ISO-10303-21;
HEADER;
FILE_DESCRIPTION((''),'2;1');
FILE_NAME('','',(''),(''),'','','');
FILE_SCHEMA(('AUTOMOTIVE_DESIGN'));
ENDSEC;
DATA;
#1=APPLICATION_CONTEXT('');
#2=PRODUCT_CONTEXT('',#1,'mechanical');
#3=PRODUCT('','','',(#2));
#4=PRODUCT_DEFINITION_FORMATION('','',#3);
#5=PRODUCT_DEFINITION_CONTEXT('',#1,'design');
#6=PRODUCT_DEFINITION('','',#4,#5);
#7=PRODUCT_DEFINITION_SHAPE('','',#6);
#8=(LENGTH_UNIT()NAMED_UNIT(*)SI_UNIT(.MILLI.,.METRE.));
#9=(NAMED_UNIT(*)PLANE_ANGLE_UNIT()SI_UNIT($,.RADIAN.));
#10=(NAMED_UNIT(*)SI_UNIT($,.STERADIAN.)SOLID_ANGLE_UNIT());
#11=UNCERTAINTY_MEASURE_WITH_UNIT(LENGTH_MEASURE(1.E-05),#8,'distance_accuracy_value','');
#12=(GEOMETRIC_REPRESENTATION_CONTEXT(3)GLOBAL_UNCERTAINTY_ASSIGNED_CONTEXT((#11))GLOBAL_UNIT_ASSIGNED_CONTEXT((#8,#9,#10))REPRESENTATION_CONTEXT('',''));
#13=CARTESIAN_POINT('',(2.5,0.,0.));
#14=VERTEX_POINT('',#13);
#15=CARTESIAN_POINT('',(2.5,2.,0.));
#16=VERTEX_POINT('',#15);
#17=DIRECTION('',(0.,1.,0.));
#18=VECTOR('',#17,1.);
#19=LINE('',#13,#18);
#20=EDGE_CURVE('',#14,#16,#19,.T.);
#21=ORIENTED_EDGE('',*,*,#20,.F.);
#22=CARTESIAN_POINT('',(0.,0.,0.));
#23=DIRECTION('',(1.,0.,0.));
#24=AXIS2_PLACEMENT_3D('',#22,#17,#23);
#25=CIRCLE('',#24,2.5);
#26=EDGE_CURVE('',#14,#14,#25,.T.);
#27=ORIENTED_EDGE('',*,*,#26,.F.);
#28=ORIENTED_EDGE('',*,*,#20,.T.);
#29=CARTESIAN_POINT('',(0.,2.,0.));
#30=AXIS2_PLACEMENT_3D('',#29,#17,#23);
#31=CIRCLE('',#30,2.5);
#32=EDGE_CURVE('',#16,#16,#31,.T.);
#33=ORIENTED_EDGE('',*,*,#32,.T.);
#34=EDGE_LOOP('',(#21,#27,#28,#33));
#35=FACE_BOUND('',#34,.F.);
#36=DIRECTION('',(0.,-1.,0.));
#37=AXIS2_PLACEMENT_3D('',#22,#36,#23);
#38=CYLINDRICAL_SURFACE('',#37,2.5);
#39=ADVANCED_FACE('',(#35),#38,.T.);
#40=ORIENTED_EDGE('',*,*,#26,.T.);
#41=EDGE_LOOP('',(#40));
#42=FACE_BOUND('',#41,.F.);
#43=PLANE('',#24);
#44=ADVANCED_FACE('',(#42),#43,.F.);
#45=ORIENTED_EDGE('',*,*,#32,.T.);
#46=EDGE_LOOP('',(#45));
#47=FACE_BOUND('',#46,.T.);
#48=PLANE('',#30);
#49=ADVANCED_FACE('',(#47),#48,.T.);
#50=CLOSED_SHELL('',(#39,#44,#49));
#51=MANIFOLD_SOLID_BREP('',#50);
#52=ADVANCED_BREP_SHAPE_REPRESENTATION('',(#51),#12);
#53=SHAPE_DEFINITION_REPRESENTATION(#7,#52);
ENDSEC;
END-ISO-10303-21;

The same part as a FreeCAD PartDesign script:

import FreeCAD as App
import Part
import Sketcher

V = App.Vector

doc = App.newDocument("Part")
body = doc.addObject("PartDesign::Body", "Body")

sketch1 = body.newObject("Sketcher::SketchObject", "Sketch")
sketch1.AttachmentSupport = (doc.getObject("XZ_Plane"), [""])
sketch1.MapMode = "FlatFace"
sketch1.addGeometry(Part.Circle(V(0, 0, 0), V(0, 0, 1), 2.5), False)
sketch1.addConstraint(Sketcher.Constraint("Coincident", 0, 3, -1, 1))
sketch1.addConstraint(Sketcher.Constraint("Diameter", 0, 5.0))
pad1 = body.newObject("PartDesign::Pad", "Pad")
pad1.Profile = sketch1
pad1.Length = 2
pad1.Reversed = True

doc.recompute()
